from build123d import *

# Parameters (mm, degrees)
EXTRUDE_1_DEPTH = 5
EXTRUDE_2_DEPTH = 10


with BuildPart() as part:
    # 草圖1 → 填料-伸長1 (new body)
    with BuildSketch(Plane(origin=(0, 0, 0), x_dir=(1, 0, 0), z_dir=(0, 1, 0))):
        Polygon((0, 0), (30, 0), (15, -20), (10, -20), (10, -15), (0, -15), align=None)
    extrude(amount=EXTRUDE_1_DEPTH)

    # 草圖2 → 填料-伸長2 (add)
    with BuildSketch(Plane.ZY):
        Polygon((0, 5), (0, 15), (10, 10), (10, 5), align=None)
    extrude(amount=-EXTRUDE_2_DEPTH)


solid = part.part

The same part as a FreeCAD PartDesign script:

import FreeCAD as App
import Part
import Sketcher
from FreeCAD import Vector
Q = App.Units.Quantity

doc = App.newDocument("Part")
body = doc.addObject("PartDesign::Body", "Body")

sketch1 = body.newObject("Sketcher::SketchObject", "Sketch")
sketch1.AttachmentSupport = (doc.getObject("XZ_Plane"), [""])
sketch1.MapMode = "FlatFace"
sketch1.addGeometry([
    Part.LineSegment(Vector(30, 0, 0), Vector(0, 0, 0)),
    Part.LineSegment(Vector(0, 0, 0), Vector(0, 15, 0)),
    Part.LineSegment(Vector(0, 15, 0), Vector(10, 15, 0)),
    Part.LineSegment(Vector(10, 15, 0), Vector(10, 20, 0)),
    Part.LineSegment(Vector(10, 20, 0), Vector(15, 20, 0)),
    Part.LineSegment(Vector(15, 20, 0), Vector(30, 0, 0)),
], False)
sketch1.addConstraint([
    Sketcher.Constraint("Coincident", 0, 2, 1, 1),
    Sketcher.Constraint("Coincident", 1, 2, 2, 1),
    Sketcher.Constraint("Coincident", 2, 2, 3, 1),
    Sketcher.Constraint("Coincident", 3, 2, 4, 1),
    Sketcher.Constraint("Coincident", 4, 2, 5, 1),
    Sketcher.Constraint("Coincident", 5, 2, 0, 1),
    Sketcher.Constraint("Horizontal", 0),
    Sketcher.Constraint("Vertical", 1),
    Sketcher.Constraint("Horizontal", 2),
    Sketcher.Constraint("Vertical", 3),
    Sketcher.Constraint("Horizontal", 4),
    Sketcher.Constraint("Coincident", 0, 2, -1, 1),
    Sketcher.Constraint("Equal", 4, 3),
    Sketcher.Constraint("DistanceX", 0, 2, 0, 1, Q("30 mm")),
    Sketcher.Constraint("DistanceX", 2, 1, 2, 2, Q("10 mm")),
    Sketcher.Constraint("DistanceX", 4, 1, 4, 2, Q("5 mm")),
    Sketcher.Constraint("DistanceY", 1, 1, 1, 2, Q("15 mm")),
])
pad1 = body.newObject("PartDesign::Pad", "Pad")
pad1.Profile = sketch1
pad1.Length = 5
pad1.Reversed = True

sketch2 = body.newObject("Sketcher::SketchObject", "Sketch001")
sketch2.AttachmentSupport = (doc.getObject("YZ_Plane"), [""])
sketch2.MapMode = "FlatFace"
sketch2.addGeometry([
    Part.LineSegment(Vector(15, 0, 0), Vector(5, 0, 0)),
    Part.LineSegment(Vector(5, 0, 0), Vector(5, 10, 0)),
    Part.LineSegment(Vector(5, 10, 0), Vector(10, 10, 0)),
    Part.LineSegment(Vector(10, 10, 0), Vector(15, 0, 0)),
], False)
sketch2.addConstraint([
    Sketcher.Constraint("Coincident", 0, 2, 1, 1),
    Sketcher.Constraint("Coincident", 1, 2, 2, 1),
    Sketcher.Constraint("Coincident", 2, 2, 3, 1),
    Sketcher.Constraint("Coincident", 3, 2, 0, 1),
    Sketcher.Constraint("Horizontal", 0),
    Sketcher.Constraint("Vertical", 1),
    Sketcher.Constraint("Horizontal", 2),
    Sketcher.Constraint("PointOnObject", 0, 2, -1),
    Sketcher.Constraint("Equal", 0, 1),
    Sketcher.Constraint("DistanceX", 0, 2, 0, 1, Q("10 mm")),
    Sketcher.Constraint("DistanceX", 2, 1, 2, 2, Q("5 mm")),
    Sketcher.Constraint("DistanceX", -1, 1, 0, 2, Q("5 mm")),
])
pad2 = body.newObject("PartDesign::Pad", "Pad001")
pad2.Profile = sketch2
pad2.Length = 10

doc.recompute()
